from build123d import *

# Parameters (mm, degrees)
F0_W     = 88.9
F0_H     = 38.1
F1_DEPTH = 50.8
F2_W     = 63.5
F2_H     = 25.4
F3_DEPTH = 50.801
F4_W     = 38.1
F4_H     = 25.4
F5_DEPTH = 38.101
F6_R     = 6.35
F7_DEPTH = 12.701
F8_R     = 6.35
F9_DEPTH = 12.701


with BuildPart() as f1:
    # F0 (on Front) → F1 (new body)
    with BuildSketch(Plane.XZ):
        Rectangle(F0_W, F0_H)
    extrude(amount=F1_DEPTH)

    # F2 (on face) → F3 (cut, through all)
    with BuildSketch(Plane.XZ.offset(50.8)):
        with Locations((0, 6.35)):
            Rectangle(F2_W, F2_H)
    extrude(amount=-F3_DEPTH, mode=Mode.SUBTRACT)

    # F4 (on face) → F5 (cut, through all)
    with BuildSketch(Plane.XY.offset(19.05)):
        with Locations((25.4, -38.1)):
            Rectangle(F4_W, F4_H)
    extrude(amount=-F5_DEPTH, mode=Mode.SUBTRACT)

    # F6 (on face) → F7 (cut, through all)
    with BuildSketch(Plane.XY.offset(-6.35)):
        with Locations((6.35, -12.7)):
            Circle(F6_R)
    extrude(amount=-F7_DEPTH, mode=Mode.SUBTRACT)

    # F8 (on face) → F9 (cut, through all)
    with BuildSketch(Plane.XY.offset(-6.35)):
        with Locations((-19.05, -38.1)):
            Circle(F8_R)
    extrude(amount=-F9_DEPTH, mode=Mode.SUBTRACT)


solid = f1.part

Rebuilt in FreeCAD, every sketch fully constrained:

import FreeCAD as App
import Part
import Sketcher
Q = App.Units.Quantity

doc = App.newDocument("Part")
body = doc.addObject("PartDesign::Body", "Body")

sketch1 = body.newObject("Sketcher::SketchObject", "Sketch")
sketch1.AttachmentSupport = (doc.getObject("XZ_Plane"), [""])
sketch1.MapMode = "FlatFace"
sketch1.addGeometry([
    Part.LineSegment(App.Vector(-44.45, 19.05, 0), App.Vector(-44.45, -19.05, 0)),
    Part.LineSegment(App.Vector(-44.45, -19.05, 0), App.Vector(44.45, -19.05, 0)),
    Part.LineSegment(App.Vector(44.45, -19.05, 0), App.Vector(44.45, 19.05, 0)),
    Part.LineSegment(App.Vector(44.45, 19.05, 0), App.Vector(-44.45, 19.05, 0)),
], False)
sketch1.addConstraint([
    Sketcher.Constraint("Coincident", 0, 2, 1, 1),
    Sketcher.Constraint("Coincident", 1, 2, 2, 1),
    Sketcher.Constraint("Coincident", 2, 2, 3, 1),
    Sketcher.Constraint("Coincident", 3, 2, 0, 1),
    Sketcher.Constraint("Vertical", 0),
    Sketcher.Constraint("Horizontal", 1),
    Sketcher.Constraint("Vertical", 2),
    Sketcher.Constraint("Horizontal", 3),
    Sketcher.Constraint("Symmetric", 0, 2, 2, 2, -1, 1),
    Sketcher.Constraint("DistanceX", 1, 1, 1, 2, Q("3.5 in")),
    Sketcher.Constraint("DistanceY", 0, 2, 0, 1, Q("1.5 in")),
])
pad1 = body.newObject("PartDesign::Pad", "Pad")
pad1.Profile = sketch1
pad1.Length = Q("2 in")

sketch2 = body.newObject("Sketcher::SketchObject", "Sketch001")
sketch2.AttachmentSupport = (doc.getObject("XZ_Plane"), [""])
sketch2.MapMode = "FlatFace"
sketch2.AttachmentOffset = App.Placement(App.Vector(0, 0, 2 * 25.4), App.Rotation())
sketch2.addGeometry([
    Part.LineSegment(App.Vector(-31.75, 19.05, 0), App.Vector(-31.75, -6.35, 0)),
    Part.LineSegment(App.Vector(-31.75, -6.35, 0), App.Vector(31.75, -6.35, 0)),
    Part.LineSegment(App.Vector(31.75, -6.35, 0), App.Vector(31.75, 19.05, 0)),
    Part.LineSegment(App.Vector(31.75, 19.05, 0), App.Vector(-31.75, 19.05, 0)),
], False)
sketch2.addConstraint([
    Sketcher.Constraint("Coincident", 0, 2, 1, 1),
    Sketcher.Constraint("Coincident", 1, 2, 2, 1),
    Sketcher.Constraint("Coincident", 2, 2, 3, 1),
    Sketcher.Constraint("Coincident", 3, 2, 0, 1),
    Sketcher.Constraint("Vertical", 0),
    Sketcher.Constraint("Horizontal", 1),
    Sketcher.Constraint("Vertical", 2),
    Sketcher.Constraint("Horizontal", 3),
    Sketcher.Constraint("DistanceY", 0, 2, 0, 1, Q("1 in")),
    Sketcher.Constraint("DistanceX", 1, 1, 1, 2, Q("2.5 in")),
    Sketcher.Constraint("DistanceX", 0, 2, -1, 1, Q("1.25 in")),
    Sketcher.Constraint("DistanceY", 0, 2, -1, 1, Q("0.25 in")),
])
pocket1 = body.newObject("PartDesign::Pocket", "Pocket")
pocket1.Profile = sketch2
pocket1.Type = "ThroughAll"

sketch3 = body.newObject("Sketcher::SketchObject", "Sketch002")
sketch3.AttachmentSupport = (doc.getObject("XY_Plane"), [""])
sketch3.MapMode = "FlatFace"
sketch3.AttachmentOffset = App.Placement(App.Vector(0, 0, 0.75 * 25.4), App.Rotation())
sketch3.addGeometry([
    Part.LineSegment(App.Vector(6.35, -25.4, 0), App.Vector(6.35, -50.8, 0)),
    Part.LineSegment(App.Vector(6.35, -50.8, 0), App.Vector(44.45, -50.8, 0)),
    Part.LineSegment(App.Vector(44.45, -50.8, 0), App.Vector(44.45, -25.4, 0)),
    Part.LineSegment(App.Vector(44.45, -25.4, 0), App.Vector(6.35, -25.4, 0)),
], False)
sketch3.addConstraint([
    Sketcher.Constraint("Coincident", 0, 2, 1, 1),
    Sketcher.Constraint("Coincident", 1, 2, 2, 1),
    Sketcher.Constraint("Coincident", 2, 2, 3, 1),
    Sketcher.Constraint("Coincident", 3, 2, 0, 1),
    Sketcher.Constraint("Vertical", 0),
    Sketcher.Constraint("Horizontal", 1),
    Sketcher.Constraint("Vertical", 2),
    Sketcher.Constraint("Horizontal", 3),
    Sketcher.Constraint("DistanceY", 0, 2, 0, 1, Q("1 in")),
    Sketcher.Constraint("DistanceX", 1, 1, 1, 2, Q("1.5 in")),
    Sketcher.Constraint("DistanceY", 0, 2, -1, 1, Q("2 in")),
    Sketcher.Constraint("DistanceX", -1, 1, 0, 2, Q("0.25 in")),
])
pocket2 = body.newObject("PartDesign::Pocket", "Pocket001")
pocket2.Profile = sketch3
pocket2.Type = "ThroughAll"

sketch4 = body.newObject("Sketcher::SketchObject", "Sketch003")
sketch4.AttachmentSupport = (doc.getObject("XY_Plane"), [""])
sketch4.MapMode = "FlatFace"
sketch4.AttachmentOffset = App.Placement(App.Vector(0, 0, -0.25 * 25.4), App.Rotation())
sketch4.addGeometry(Part.Circle(App.Vector(6.35, -12.7, 0), App.Vector(0, 0, 1), 6.35), False)
sketch4.addConstraint([
    Sketcher.Constraint("Diameter", 0, Q("0.5 in")),
    Sketcher.Constraint("DistanceY", 0, 3, -1, 1, Q("0.5 in")),
    Sketcher.Constraint("DistanceX", -1, 1, 0, 3, Q("0.25 in")),
])
pocket3 = body.newObject("PartDesign::Pocket", "Pocket002")
pocket3.Profile = sketch4
pocket3.Type = "ThroughAll"

sketch5 = body.newObject("Sketcher::SketchObject", "Sketch004")
sketch5.AttachmentSupport = (doc.getObject("XY_Plane"), [""])
sketch5.MapMode = "FlatFace"
sketch5.AttachmentOffset = App.Placement(App.Vector(0, 0, -0.25 * 25.4), App.Rotation())
sketch5.addGeometry(Part.Circle(App.Vector(-19.05, -38.1, 0), App.Vector(0, 0, 1), 6.35), False)
sketch5.addConstraint([
    Sketcher.Constraint("Diameter", 0, Q("0.5 in")),
    Sketcher.Constraint("DistanceY", 0, 3, -1, 1, Q("1.5 in")),
    Sketcher.Constraint("DistanceX", 0, 3, -1, 1, Q("0.75 in")),
])
pocket4 = body.newObject("PartDesign::Pocket", "Pocket003")
pocket4.Profile = sketch5
pocket4.Type = "ThroughAll"

doc.recompute()
